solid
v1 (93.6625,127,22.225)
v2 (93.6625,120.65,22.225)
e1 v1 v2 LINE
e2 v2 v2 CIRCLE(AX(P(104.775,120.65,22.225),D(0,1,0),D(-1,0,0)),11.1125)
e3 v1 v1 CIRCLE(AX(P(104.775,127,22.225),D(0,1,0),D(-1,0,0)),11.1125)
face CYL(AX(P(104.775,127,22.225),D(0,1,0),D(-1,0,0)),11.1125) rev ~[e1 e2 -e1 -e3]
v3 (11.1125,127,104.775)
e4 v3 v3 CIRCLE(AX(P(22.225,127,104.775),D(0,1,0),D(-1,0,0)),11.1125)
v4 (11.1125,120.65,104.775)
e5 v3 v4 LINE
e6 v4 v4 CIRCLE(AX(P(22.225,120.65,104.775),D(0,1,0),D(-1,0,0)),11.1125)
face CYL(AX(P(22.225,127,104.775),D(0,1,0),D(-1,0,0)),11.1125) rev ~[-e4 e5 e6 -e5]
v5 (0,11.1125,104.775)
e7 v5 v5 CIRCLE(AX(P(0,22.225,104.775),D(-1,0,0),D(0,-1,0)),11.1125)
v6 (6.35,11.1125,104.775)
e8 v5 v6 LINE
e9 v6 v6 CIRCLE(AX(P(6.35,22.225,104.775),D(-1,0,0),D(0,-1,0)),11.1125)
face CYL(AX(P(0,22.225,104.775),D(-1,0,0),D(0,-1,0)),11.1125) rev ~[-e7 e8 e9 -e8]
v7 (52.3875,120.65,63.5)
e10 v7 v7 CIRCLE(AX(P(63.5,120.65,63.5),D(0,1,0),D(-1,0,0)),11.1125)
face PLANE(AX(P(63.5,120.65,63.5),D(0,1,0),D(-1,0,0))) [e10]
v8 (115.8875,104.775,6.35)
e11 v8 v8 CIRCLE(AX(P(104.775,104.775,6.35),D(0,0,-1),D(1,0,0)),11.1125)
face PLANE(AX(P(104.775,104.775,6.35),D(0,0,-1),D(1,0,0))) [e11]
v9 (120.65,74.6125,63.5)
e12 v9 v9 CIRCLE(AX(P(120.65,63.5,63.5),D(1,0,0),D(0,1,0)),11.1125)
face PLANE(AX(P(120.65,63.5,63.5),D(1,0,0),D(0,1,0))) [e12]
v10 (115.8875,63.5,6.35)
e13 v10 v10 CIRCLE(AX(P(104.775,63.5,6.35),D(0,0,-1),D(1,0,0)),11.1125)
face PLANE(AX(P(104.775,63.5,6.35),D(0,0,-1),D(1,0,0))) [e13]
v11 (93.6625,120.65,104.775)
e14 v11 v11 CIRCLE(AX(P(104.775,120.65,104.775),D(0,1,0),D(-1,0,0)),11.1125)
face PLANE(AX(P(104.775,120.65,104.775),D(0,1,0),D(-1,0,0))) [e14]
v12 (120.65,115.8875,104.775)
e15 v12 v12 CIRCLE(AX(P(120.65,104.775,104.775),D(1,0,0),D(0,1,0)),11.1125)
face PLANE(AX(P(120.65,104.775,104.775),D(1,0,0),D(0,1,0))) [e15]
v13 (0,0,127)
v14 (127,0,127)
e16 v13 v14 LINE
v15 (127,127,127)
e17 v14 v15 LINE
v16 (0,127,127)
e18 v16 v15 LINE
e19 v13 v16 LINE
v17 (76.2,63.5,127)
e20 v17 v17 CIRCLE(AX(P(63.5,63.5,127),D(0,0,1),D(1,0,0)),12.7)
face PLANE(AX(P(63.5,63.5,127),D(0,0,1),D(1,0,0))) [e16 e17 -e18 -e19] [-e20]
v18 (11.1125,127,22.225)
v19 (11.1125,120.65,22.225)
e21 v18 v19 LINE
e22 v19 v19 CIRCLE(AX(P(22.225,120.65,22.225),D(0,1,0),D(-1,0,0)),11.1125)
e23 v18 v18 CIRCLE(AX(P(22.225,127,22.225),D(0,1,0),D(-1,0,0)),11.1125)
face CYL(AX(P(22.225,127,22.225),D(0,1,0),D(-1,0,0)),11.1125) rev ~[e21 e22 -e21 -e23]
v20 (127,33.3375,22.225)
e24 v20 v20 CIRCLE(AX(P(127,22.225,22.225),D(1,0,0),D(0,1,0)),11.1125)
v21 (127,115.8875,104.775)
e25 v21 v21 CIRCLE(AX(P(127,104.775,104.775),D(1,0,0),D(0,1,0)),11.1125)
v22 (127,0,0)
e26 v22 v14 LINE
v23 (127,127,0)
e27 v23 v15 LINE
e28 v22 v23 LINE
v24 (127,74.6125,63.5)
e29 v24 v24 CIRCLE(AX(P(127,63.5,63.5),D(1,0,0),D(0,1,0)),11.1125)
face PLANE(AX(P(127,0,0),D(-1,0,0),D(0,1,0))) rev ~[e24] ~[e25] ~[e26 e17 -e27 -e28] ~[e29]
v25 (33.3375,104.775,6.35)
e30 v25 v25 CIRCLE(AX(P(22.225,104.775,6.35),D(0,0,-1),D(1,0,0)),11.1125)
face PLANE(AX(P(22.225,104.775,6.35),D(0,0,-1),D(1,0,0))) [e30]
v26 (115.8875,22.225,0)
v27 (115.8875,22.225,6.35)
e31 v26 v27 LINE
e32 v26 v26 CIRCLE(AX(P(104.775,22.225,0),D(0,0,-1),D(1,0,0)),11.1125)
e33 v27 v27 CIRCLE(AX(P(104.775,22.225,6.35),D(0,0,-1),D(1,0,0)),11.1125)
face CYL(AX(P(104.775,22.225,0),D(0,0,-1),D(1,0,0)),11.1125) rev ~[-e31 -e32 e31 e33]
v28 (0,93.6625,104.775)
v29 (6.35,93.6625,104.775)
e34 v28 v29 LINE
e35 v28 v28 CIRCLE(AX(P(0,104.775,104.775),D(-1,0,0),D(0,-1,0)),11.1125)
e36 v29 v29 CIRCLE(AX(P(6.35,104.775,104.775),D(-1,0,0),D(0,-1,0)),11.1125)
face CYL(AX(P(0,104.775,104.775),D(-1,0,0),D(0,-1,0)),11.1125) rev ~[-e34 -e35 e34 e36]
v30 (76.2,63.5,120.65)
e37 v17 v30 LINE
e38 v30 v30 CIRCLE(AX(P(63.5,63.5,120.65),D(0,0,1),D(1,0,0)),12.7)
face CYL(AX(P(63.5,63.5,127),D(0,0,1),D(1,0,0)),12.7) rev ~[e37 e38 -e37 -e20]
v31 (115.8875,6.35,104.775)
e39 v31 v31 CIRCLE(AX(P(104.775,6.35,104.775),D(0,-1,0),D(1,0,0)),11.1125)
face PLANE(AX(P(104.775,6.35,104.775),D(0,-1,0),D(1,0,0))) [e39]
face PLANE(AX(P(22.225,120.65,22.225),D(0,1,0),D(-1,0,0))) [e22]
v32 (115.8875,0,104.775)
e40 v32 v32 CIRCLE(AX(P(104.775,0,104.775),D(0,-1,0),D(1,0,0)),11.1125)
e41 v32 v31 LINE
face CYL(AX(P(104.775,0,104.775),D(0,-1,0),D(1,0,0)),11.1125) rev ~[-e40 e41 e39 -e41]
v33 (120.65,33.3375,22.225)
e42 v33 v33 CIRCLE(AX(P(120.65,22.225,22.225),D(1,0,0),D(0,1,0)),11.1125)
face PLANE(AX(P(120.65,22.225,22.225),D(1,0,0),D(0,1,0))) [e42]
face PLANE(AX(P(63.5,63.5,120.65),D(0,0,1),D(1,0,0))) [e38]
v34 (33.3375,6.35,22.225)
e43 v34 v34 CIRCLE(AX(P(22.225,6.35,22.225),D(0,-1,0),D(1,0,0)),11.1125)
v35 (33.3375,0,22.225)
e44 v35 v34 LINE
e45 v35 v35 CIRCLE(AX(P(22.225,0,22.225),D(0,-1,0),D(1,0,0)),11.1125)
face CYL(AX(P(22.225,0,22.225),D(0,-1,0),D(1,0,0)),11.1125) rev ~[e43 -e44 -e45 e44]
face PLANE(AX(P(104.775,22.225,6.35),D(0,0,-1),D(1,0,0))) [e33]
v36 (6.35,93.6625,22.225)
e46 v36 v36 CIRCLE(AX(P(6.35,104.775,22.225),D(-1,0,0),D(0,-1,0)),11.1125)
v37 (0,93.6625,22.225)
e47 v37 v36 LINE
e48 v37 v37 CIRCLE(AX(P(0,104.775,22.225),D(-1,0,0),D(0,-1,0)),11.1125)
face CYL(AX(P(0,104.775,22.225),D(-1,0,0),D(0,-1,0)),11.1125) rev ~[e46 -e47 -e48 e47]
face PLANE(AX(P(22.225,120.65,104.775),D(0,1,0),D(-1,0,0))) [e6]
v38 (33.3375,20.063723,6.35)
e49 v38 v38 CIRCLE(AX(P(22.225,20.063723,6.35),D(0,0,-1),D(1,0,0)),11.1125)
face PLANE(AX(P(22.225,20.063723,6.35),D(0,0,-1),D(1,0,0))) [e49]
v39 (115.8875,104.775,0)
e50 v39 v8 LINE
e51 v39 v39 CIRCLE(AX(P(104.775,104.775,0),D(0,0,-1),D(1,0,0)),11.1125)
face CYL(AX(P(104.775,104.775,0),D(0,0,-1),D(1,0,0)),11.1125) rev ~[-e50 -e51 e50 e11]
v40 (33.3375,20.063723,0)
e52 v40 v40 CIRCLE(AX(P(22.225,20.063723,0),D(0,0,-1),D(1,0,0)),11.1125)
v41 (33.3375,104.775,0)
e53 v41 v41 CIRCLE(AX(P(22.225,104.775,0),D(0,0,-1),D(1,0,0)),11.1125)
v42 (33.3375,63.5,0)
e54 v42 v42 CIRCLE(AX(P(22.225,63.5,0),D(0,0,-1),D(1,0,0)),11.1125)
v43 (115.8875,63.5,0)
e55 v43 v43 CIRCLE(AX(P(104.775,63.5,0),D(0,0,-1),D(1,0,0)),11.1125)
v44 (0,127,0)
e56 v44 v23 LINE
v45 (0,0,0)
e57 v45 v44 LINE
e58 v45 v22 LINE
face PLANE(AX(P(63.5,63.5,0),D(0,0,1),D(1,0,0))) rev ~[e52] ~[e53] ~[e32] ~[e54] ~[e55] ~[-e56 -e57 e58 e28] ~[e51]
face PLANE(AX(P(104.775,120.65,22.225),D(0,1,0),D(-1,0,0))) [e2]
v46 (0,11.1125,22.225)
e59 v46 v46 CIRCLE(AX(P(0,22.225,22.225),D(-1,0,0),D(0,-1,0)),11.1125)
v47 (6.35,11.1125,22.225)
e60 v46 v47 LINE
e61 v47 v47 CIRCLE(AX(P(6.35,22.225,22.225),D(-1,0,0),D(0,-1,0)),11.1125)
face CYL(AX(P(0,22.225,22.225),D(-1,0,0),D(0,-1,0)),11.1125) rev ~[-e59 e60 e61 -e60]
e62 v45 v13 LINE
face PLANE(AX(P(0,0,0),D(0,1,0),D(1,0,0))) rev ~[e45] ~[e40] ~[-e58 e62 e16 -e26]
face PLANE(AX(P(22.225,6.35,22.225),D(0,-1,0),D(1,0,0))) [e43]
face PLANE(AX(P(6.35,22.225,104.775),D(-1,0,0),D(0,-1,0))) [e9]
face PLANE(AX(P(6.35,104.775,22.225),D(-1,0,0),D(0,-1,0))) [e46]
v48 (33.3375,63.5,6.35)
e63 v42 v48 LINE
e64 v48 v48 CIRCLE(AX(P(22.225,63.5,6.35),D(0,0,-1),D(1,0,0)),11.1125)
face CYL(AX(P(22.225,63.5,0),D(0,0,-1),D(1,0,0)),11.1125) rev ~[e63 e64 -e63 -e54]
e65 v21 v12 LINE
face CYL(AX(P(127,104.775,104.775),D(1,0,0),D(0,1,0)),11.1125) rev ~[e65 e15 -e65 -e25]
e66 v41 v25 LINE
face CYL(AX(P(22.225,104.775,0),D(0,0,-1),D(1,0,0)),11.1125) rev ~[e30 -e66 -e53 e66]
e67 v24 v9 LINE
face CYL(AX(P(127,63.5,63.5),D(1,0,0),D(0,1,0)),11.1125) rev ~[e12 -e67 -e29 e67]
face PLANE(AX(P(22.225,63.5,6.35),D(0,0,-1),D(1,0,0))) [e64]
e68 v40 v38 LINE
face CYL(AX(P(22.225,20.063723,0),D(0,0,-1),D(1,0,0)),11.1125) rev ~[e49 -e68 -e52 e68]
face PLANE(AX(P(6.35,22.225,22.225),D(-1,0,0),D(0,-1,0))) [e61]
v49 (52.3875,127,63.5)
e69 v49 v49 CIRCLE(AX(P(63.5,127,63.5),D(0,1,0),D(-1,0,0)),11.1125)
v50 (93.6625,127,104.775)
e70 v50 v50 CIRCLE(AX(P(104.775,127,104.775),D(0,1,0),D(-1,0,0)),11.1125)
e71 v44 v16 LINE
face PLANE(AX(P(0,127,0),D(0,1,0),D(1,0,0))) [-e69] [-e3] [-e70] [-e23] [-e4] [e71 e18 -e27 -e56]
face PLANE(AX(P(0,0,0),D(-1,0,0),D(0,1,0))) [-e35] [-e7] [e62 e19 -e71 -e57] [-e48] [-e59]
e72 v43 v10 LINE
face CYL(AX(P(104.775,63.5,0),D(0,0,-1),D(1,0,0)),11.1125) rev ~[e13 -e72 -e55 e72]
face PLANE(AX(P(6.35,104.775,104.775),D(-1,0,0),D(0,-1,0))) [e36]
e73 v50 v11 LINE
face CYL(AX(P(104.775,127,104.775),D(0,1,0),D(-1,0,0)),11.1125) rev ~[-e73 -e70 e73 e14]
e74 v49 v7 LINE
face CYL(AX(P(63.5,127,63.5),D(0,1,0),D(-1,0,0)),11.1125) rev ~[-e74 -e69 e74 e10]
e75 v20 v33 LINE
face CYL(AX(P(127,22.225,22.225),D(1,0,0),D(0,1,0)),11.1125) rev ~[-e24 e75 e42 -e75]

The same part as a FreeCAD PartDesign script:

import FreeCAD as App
import Part
import Sketcher

V = App.Vector
Q = App.Units.Quantity

doc = App.newDocument("Part")
body = doc.addObject("PartDesign::Body", "Body")

# Sketch on XY plane
sketch1 = body.newObject("Sketcher::SketchObject", "Sketch")
sketch1.AttachmentSupport = (doc.getObject("XY_Plane"), [""])
sketch1.MapMode = "FlatFace"
sketch1.addGeometry([
    Part.LineSegment(V(0, 127, 0), V(0, 0, 0)),
    Part.LineSegment(V(0, 0, 0), V(127, 0, 0)),
    Part.LineSegment(V(127, 0, 0), V(127, 127, 0)),
    Part.LineSegment(V(127, 127, 0), V(0, 127, 0)),
], False)
sketch1.addConstraint([
    Sketcher.Constraint("Coincident", 0, 2, 1, 1),
    Sketcher.Constraint("Coincident", 1, 2, 2, 1),
    Sketcher.Constraint("Coincident", 2, 2, 3, 1),
    Sketcher.Constraint("Coincident", 3, 2, 0, 1),
    Sketcher.Constraint("Vertical", 0),
    Sketcher.Constraint("Horizontal", 1),
    Sketcher.Constraint("Vertical", 2),
    Sketcher.Constraint("Horizontal", 3),
    Sketcher.Constraint("Coincident", 0, 2, -1, 1),
    Sketcher.Constraint("Equal", 3, 0),
    Sketcher.Constraint("DistanceX", 1, 1, 1, 2, Q("5 in")),
])
pad1 = body.newObject("PartDesign::Pad", "Pad")
pad1.Profile = sketch1
pad1.Length = Q("5 in")

# Sketch on XY plane
sketch2 = body.newObject("Sketcher::SketchObject", "Sketch001")
sketch2.AttachmentSupport = (doc.getObject("XY_Plane"), [""])
sketch2.MapMode = "FlatFace"
sketch2.AttachmentOffset = App.Placement(V(0, 0, 5 * 25.4), App.Rotation())
sketch2.addGeometry(Part.Circle(V(63.5, 63.5, 0), V(0, 0, 1), 12.7), False)
sketch2.addConstraint([
    Sketcher.Constraint("Diameter", 0, Q("1 in")),
    Sketcher.Constraint("DistanceX", -1, 1, 0, 3, Q("2.5 in")),
    Sketcher.Constraint("DistanceY", -1, 1, 0, 3, Q("2.5 in")),
])
pocket1 = body.newObject("PartDesign::Pocket", "Pocket")
pocket1.Profile = sketch2
pocket1.Length = Q("0.25 in")

# Sketch on XZ plane
sketch3 = body.newObject("Sketcher::SketchObject", "Sketch002")
sketch3.AttachmentSupport = (doc.getObject("XZ_Plane"), [""])
sketch3.MapMode = "FlatFace"
sketch3.addGeometry([
    Part.Circle(V(22.225, 22.225, 0), V(0, 0, 1), 11.1125),
    Part.Circle(V(104.775, 104.775, 0), V(0, 0, 1), 11.1125),
], False)
sketch3.addConstraint([
    Sketcher.Constraint("Equal", 0, 1),
    Sketcher.Constraint("Diameter", 0, Q("0.875 in")),
    Sketcher.Constraint("DistanceX", 0, 3, 1, 3, Q("3.25 in")),
    Sketcher.Constraint("DistanceY", 0, 3, 1, 3, Q("3.25 in")),
    Sketcher.Constraint("DistanceX", -1, 1, 0, 3, Q("0.875 in")),
    Sketcher.Constraint("DistanceY", -1, 1, 0, 3, Q("0.875 in")),
])
pocket2 = body.newObject("PartDesign::Pocket", "Pocket001")
pocket2.Profile = sketch3
pocket2.Length = Q("0.25 in")

# Sketch on YZ plane
sketch4 = body.newObject("Sketcher::SketchObject", "Sketch003")
sketch4.AttachmentSupport = (doc.getObject("YZ_Plane"), [""])
sketch4.MapMode = "FlatFace"
sketch4.AttachmentOffset = App.Placement(V(0, 0, 5 * 25.4), App.Rotation())
sketch4.addGeometry([
    Part.Circle(V(63.5, 63.5, 0), V(0, 0, 1), 11.1125),
    Part.Circle(V(22.225, 22.225, 0), V(0, 0, 1), 11.1125),
    Part.Circle(V(104.775, 104.775, 0), V(0, 0, 1), 11.1125),
], False)
sketch4.addConstraint([
    Sketcher.Constraint("Equal", 0, 1),
    Sketcher.Constraint("Equal", 1, 2),
    Sketcher.Constraint("Diameter", 0, Q("0.875 in")),
    Sketcher.Constraint("DistanceX", -1, 1, 0, 3, Q("2.5 in")),
    Sketcher.Constraint("DistanceY", -1, 1, 0, 3, Q("2.5 in")),
    Sketcher.Constraint("DistanceX", 1, 3, 2, 3, Q("3.25 in")),
    Sketcher.Constraint("DistanceY", 1, 3, 2, 3, Q("3.25 in")),
    Sketcher.Constraint("DistanceX", -1, 1, 1, 3, Q("0.875 in")),
    Sketcher.Constraint("DistanceY", -1, 1, 1, 3, Q("0.875 in")),
])
pocket3 = body.newObject("PartDesign::Pocket", "Pocket002")
pocket3.Profile = sketch4
pocket3.Length = Q("0.25 in")

# Sketch on YZ plane
sketch5 = body.newObject("Sketcher::SketchObject", "Sketch004")
sketch5.AttachmentSupport = (doc.getObject("YZ_Plane"), [""])
sketch5.MapMode = "FlatFace"
sketch5.addGeometry([
    Part.Circle(V(104.775, 104.775, 0), V(0, 0, 1), 11.1125),
    Part.Circle(V(104.775, 22.225, 0), V(0, 0, 1), 11.1125),
    Part.Circle(V(22.225, 104.775, 0), V(0, 0, 1), 11.1125),
    Part.Circle(V(22.225, 22.225, 0), V(0, 0, 1), 11.1125),
], False)
sketch5.addConstraint([
    Sketcher.Constraint("Equal", 0, 1),
    Sketcher.Constraint("Equal", 1, 2),
    Sketcher.Constraint("Equal", 2, 3),
    Sketcher.Constraint("Horizontal", 0, 3, 2, 3),
    Sketcher.Constraint("Horizontal", 1, 3, 3, 3),
    Sketcher.Constraint("Vertical", 0, 3, 1, 3),
    Sketcher.Constraint("Vertical", 2, 3, 3, 3),
    Sketcher.Constraint("Diameter", 0, Q("0.875 in")),
    Sketcher.Constraint("DistanceY", 1, 3, 0, 3, Q("3.25 in")),
    Sketcher.Constraint("DistanceX", 2, 3, 0, 3, Q("3.25 in")),
    Sketcher.Constraint("DistanceX", -1, 1, 0, 3, Q("4.125 in")),
    Sketcher.Constraint("DistanceY", -1, 1, 0, 3, Q("4.125 in")),
])
pocket4 = body.newObject("PartDesign::Pocket", "Pocket003")
pocket4.Profile = sketch5
pocket4.Length = Q("0.25 in")
pocket4.Reversed = True

# Sketch on XZ plane
sketch6 = body.newObject("Sketcher::SketchObject", "Sketch005")
sketch6.AttachmentSupport = (doc.getObject("XZ_Plane"), [""])
sketch6.MapMode = "FlatFace"
sketch6.AttachmentOffset = App.Placement(V(0, 0, -5 * 25.4), App.Rotation())
sketch6.addGeometry([
    Part.Circle(V(104.775, 104.775, 0), V(0, 0, 1), 11.1125),  # 0
    Part.Circle(V(63.5, 63.5, 0), V(0, 0, 1), 11.1125),  # 1
    Part.Circle(V(22.225, 22.225, 0), V(0, 0, 1), 11.1125),  # 2
    Part.Circle(V(104.775, 22.225, 0), V(0, 0, 1), 11.1125),  # 3
    Part.Circle(V(22.225, 104.775, 0), V(0, 0, 1), 11.1125),  # 4
], False)
sketch6.addConstraint([
    Sketcher.Constraint("Equal", 0, 1),
    Sketcher.Constraint("Equal", 1, 2),
    Sketcher.Constraint("Equal", 2, 3),
    Sketcher.Constraint("Equal", 3, 4),
    Sketcher.Constraint("Horizontal", 2, 3, 3, 3),
    Sketcher.Constraint("Horizontal", 0, 3, 4, 3),
    Sketcher.Constraint("Vertical", 0, 3, 3, 3),
    Sketcher.Constraint("Vertical", 2, 3, 4, 3),
    Sketcher.Constraint("Diameter", 0, Q("0.875 in")),
    Sketcher.Constraint("DistanceX", -1, 1, 1, 3, Q("2.5 in")),
    Sketcher.Constraint("DistanceY", -1, 1, 1, 3, Q("2.5 in")),
    Sketcher.Constraint("DistanceX", 2, 3, 0, 3, Q("3.25 in")),
    Sketcher.Constraint("DistanceY", 2, 3, 0, 3, Q("3.25 in")),
    Sketcher.Constraint("DistanceX", -1, 1, 0, 3, Q("4.125 in")),
    Sketcher.Constraint("DistanceY", -1, 1, 0, 3, Q("4.125 in")),
])
pocket5 = body.newObject("PartDesign::Pocket", "Pocket004")
pocket5.Profile = sketch6
pocket5.Length = Q("0.25 in")
pocket5.Reversed = True

# Sketch on XY plane
sketch7 = body.newObject("Sketcher::SketchObject", "Sketch006")
sketch7.AttachmentSupport = (doc.getObject("XY_Plane"), [""])
sketch7.MapMode = "FlatFace"
sketch7.addGeometry([
    Part.Circle(V(104.775, 104.775, 0), V(0, 0, 1), 11.1125),  # 0
    Part.Circle(V(104.775, 63.5, 0), V(0, 0, 1), 11.1125),  # 1
    Part.Circle(V(104.775, 22.225, 0), V(0, 0, 1), 11.1125),  # 2
    Part.Circle(V(22.225, 63.5, 0), V(0, 0, 1), 11.1125),  # 3
    Part.Circle(V(22.225, 104.775, 0), V(0, 0, 1), 11.1125),  # 4
    Part.Circle(V(22.225, 20.063723, 0), V(0, 0, 1), 11.1125),  # 5
], False)
sketch7.addConstraint([
    Sketcher.Constraint("Equal", 0, 1),
    Sketcher.Constraint("Equal", 1, 2),
    Sketcher.Constraint("Equal", 2, 3),
    Sketcher.Constraint("Equal", 3, 4),
    Sketcher.Constraint("Equal", 4, 5),
    Sketcher.Constraint("Horizontal", 1, 3, 3, 3),
    Sketcher.Constraint("Horizontal", 0, 3, 4, 3),
    Sketcher.Constraint("Vertical", 0, 3, 1, 3),
    Sketcher.Constraint("Vertical", 1, 3, 2, 3),
    Sketcher.Constraint("Vertical", 3, 3, 4, 3),
    Sketcher.Constraint("Vertical", 4, 3, 5, 3),
    Sketcher.Constraint("Diameter", 0, Q("0.875 in")),
    Sketcher.Constraint("DistanceY", -1, 1, 1, 3, Q("2.5 in")),
    Sketcher.Constraint("DistanceY", 2, 3, 0, 3, Q("3.25 in")),
    Sketcher.Constraint("DistanceX", 3, 3, 1, 3, Q("3.25 in")),
    Sketcher.Constraint("DistanceX", -1, 1, 0, 3, Q("4.125 in")),
    Sketcher.Constraint("DistanceY", -1, 1, 0, 3, Q("4.125 in")),
    Sketcher.Constraint("DistanceY", -1, 1, 5, 3, Q("20.063723 mm")),
])
pocket6 = body.newObject("PartDesign::Pocket", "Pocket005")
pocket6.Profile = sketch7
pocket6.Length = Q("0.25 in")
pocket6.Reversed = True

doc.recompute()
